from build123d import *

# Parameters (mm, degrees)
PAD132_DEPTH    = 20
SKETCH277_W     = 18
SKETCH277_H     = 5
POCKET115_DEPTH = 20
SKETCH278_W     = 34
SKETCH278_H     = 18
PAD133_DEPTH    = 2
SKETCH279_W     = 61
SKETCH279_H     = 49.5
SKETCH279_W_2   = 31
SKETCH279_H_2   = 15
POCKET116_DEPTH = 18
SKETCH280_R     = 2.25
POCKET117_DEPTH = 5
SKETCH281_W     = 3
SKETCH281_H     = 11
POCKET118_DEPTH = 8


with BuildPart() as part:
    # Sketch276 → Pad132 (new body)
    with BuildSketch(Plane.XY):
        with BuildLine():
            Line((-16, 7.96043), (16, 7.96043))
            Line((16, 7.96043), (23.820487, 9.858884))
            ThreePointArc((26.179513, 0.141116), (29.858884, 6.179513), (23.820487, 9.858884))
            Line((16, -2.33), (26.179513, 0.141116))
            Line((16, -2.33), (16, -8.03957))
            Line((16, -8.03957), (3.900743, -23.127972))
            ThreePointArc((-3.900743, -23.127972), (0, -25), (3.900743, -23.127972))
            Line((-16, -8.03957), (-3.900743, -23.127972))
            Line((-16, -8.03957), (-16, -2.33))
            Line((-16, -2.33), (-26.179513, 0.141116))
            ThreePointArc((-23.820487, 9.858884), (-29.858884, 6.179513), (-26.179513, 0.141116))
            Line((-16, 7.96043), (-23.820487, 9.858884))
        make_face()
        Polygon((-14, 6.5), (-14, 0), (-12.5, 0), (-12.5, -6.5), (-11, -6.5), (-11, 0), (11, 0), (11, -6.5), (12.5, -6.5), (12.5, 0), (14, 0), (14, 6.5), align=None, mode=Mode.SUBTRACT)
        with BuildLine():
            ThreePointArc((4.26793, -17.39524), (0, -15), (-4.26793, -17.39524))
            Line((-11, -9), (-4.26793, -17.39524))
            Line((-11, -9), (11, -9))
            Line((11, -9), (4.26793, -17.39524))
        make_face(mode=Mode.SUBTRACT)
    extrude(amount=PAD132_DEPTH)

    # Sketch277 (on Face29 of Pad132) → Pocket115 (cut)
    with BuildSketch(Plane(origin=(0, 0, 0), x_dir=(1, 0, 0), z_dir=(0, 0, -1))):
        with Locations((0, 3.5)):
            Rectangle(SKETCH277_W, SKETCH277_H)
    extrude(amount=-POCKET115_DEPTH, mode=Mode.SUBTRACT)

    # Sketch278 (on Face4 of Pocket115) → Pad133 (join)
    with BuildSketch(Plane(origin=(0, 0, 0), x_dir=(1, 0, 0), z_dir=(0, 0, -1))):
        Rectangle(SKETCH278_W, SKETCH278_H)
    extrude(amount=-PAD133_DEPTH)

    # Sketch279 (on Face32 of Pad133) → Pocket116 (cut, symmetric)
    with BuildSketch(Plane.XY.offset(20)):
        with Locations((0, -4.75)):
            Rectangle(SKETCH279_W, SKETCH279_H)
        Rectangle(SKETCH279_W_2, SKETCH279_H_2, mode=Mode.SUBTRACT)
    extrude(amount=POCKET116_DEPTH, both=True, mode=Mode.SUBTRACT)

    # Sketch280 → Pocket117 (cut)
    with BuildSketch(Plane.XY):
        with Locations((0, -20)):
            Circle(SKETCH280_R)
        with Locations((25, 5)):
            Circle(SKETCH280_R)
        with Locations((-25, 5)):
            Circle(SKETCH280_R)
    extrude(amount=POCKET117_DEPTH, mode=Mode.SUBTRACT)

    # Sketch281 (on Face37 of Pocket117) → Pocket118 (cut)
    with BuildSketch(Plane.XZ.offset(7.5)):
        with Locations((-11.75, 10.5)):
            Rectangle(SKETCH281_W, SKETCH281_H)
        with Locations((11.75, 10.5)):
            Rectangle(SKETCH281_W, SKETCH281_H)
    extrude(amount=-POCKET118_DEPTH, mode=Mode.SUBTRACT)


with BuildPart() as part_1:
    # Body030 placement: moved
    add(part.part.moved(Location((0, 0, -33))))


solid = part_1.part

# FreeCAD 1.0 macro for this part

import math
import FreeCAD as App
import Part
import Sketcher
from FreeCAD import Vector
Q = App.Units.Quantity

doc = App.newDocument("Part")
params = doc.addObject("Spreadsheet::Sheet", "Params")
for row, (alias, value) in enumerate([
    ("sketch1_radius", "5 mm"),
    ("sketch1_width", "32 mm"),
    ("sketch1_width2", "22 mm"),
    ("sketch1_width3", "28 mm"),
    ("sketch1_height", "6.5 mm"),
    ("pad1_length", "20 mm"),
    ("sketch2_width", "18 mm"),
    ("sketch2_height", "5 mm"),
    ("pocket1_length", "20 mm"),
    ("sketch3_width", "34 mm"),
    ("sketch3_height", "18 mm"),
    ("pad2_length", "2 mm"),
    ("sketch4_width", "61 mm"),
    ("sketch4_width2", "31 mm"),
    ("sketch4_height", "15 mm"),
    ("sketch4_height2", "49.5 mm"),
    ("pocket2_length", "36 mm"),
    ("sketch5_diameter", "4.5 mm"),
    ("pocket3_length", "5 mm"),
    ("sketch6_width", "3 mm"),
    ("sketch6_height", "11 mm"),
    ("pocket4_length", "8 mm"),
], start=1):
    params.set(f"A{row}", alias)
    params.set(f"B{row}", "=" + value)
    params.setAlias(f"B{row}", alias)

body = doc.addObject("PartDesign::Body", "Body")

sketch1 = body.newObject("Sketcher::SketchObject", "Sketch")
sketch1.AttachmentSupport = (doc.getObject("XY_Plane"), [""])
sketch1.MapMode = "FlatFace"
sketch1.addGeometry(Part.LineSegment(Vector(16, 7.96043, 0), Vector(-16, 7.96043, 0)), False)
sketch1.addGeometry(Part.LineSegment(Vector(-16, 7.96043, 0), Vector(-23.820487, 9.858884, 0)), False)
sketch1.addGeometry(Part.ArcOfCircle(Part.Circle(Vector(-25, 5, 0), Vector(0, 0, 1), 5), math.radians(76.355167), math.radians(256.355167)), False)
sketch1.addGeometry(Part.LineSegment(Vector(-26.179513, 0.141116, 0), Vector(-16, -2.33, 0)), False)
sketch1.addGeometry(Part.LineSegment(Vector(-16, -2.33, 0), Vector(-16, -8.03957, 0)), False)
sketch1.addGeometry(Part.LineSegment(Vector(-16, -8.03957, 0), Vector(-3.900743, -23.127972, 0)), False)
sketch1.addGeometry(Part.ArcOfCircle(Part.Circle(Vector(0, -19.999999, 0), Vector(0, 0, 1), 5.000001), math.radians(-141.274165), math.radians(-38.725835)), False)
sketch1.addGeometry(Part.LineSegment(Vector(3.900743, -23.127972, 0), Vector(16, -8.03957, 0)), False)
sketch1.addGeometry(Part.LineSegment(Vector(16, -8.03957, 0), Vector(16, -2.33, 0)), False)
sketch1.addGeometry(Part.LineSegment(Vector(16, -2.33, 0), Vector(26.179513, 0.141116, 0)), False)
sketch1.addGeometry(Part.ArcOfCircle(Part.Circle(Vector(25, 5, 0), Vector(0, 0, 1), 5), math.radians(-76.355167), math.radians(103.644833)), False)
sketch1.addGeometry(Part.LineSegment(Vector(23.820487, 9.858884, 0), Vector(16, 7.96043, 0)), False)
sketch1.addGeometry(Part.ArcOfCircle(Part.Circle(Vector(0, -20, 0), Vector(0, 0, 1), 5), math.radians(31.396133), math.radians(148.603867)), False)
sketch1.addGeometry(Part.LineSegment(Vector(-4.26793, -17.39524, 0), Vector(-11, -9, 0)), False)
sketch1.addGeometry(Part.LineSegment(Vector(-11, -9, 0), Vector(11, -9, 0)), False)
sketch1.addGeometry(Part.LineSegment(Vector(11, -9, 0), Vector(4.26793, -17.39524, 0)), False)
sketch1.addGeometry(Part.LineSegment(Vector(-14, 6.5, 0), Vector(14, 6.5, 0)), False)
sketch1.addGeometry(Part.LineSegment(Vector(14, 6.5, 0), Vector(14, 0, 0)), False)
sketch1.addGeometry(Part.LineSegment(Vector(14, 0, 0), Vector(12.5, 0, 0)), False)
sketch1.addGeometry(Part.LineSegment(Vector(12.5, 0, 0), Vector(12.5, -6.5, 0)), False)
sketch1.addGeometry(Part.LineSegment(Vector(12.5, -6.5, 0), Vector(11, -6.5, 0)), False)
sketch1.addGeometry(Part.LineSegment(Vector(11, -6.5, 0), Vector(11, 0, 0)), False)
sketch1.addGeometry(Part.LineSegment(Vector(11, 0, 0), Vector(-11, 0, 0)), False)
sketch1.addGeometry(Part.LineSegment(Vector(-11, 0, 0), Vector(-11, -6.5, 0)), False)
sketch1.addGeometry(Part.LineSegment(Vector(-11, -6.5, 0), Vector(-12.5, -6.5, 0)), False)
sketch1.addGeometry(Part.LineSegment(Vector(-12.5, -6.5, 0), Vector(-12.5, 0, 0)), False)
sketch1.addGeometry(Part.LineSegment(Vector(-12.5, 0, 0), Vector(-14, 0, 0)), False)
sketch1.addGeometry(Part.LineSegment(Vector(-14, 0, 0), Vector(-14, 6.5, 0)), False)
sketch1.addConstraint(Sketcher.Constraint("Coincident", 0, 2, 1, 1))
sketch1.addConstraint(Sketcher.Constraint("Tangent", 1, 2, 2, 1))
sketch1.addConstraint(Sketcher.Constraint("Tangent", 2, 2, 3, 1))
sketch1.addConstraint(Sketcher.Constraint("Coincident", 3, 2, 4, 1))
sketch1.addConstraint(Sketcher.Constraint("Coincident", 4, 2, 5, 1))
sketch1.addConstraint(Sketcher.Constraint("Tangent", 5, 2, 6, 1))
sketch1.addConstraint(Sketcher.Constraint("Tangent", 6, 2, 7, 1))
sketch1.addConstraint(Sketcher.Constraint("Coincident", 7, 2, 8, 1))
sketch1.addConstraint(Sketcher.Constraint("Coincident", 8, 2, 9, 1))
sketch1.addConstraint(Sketcher.Constraint("Tangent", 9, 2, 10, 1))
sketch1.addConstraint(Sketcher.Constraint("Tangent", 10, 2, 11, 1))
sketch1.addConstraint(Sketcher.Constraint("Coincident", 11, 2, 0, 1))
sketch1.addConstraint(Sketcher.Constraint("Coincident", 12, 2, 13, 1))
sketch1.addConstraint(Sketcher.Constraint("Coincident", 13, 2, 14, 1))
sketch1.addConstraint(Sketcher.Constraint("Coincident", 14, 2, 15, 1))
sketch1.addConstraint(Sketcher.Constraint("Coincident", 15, 2, 12, 1))
sketch1.addConstraint(Sketcher.Constraint("Coincident", 16, 2, 17, 1))
sketch1.addConstraint(Sketcher.Constraint("Coincident", 17, 2, 18, 1))
sketch1.addConstraint(Sketcher.Constraint("Coincident", 18, 2, 19, 1))
sketch1.addConstraint(Sketcher.Constraint("Coincident", 19, 2, 20, 1))
sketch1.addConstraint(Sketcher.Constraint("Coincident", 20, 2, 21, 1))
sketch1.addConstraint(Sketcher.Constraint("Coincident", 21, 2, 22, 1))
sketch1.addConstraint(Sketcher.Constraint("Coincident", 22, 2, 23, 1))
sketch1.addConstraint(Sketcher.Constraint("Coincident", 23, 2, 24, 1))
sketch1.addConstraint(Sketcher.Constraint("Coincident", 24, 2, 25, 1))
sketch1.addConstraint(Sketcher.Constraint("Coincident", 25, 2, 26, 1))
sketch1.addConstraint(Sketcher.Constraint("Coincident", 26, 2, 27, 1))
sketch1.addConstraint(Sketcher.Constraint("Coincident", 27, 2, 16, 1))
sketch1.addConstraint(Sketcher.Constraint("Horizontal", 0))
sketch1.addConstraint(Sketcher.Constraint("Vertical", 4))
sketch1.addConstraint(Sketcher.Constraint("Vertical", 8))
sketch1.addConstraint(Sketcher.Constraint("Horizontal", 14))
sketch1.addConstraint(Sketcher.Constraint("Horizontal", 16))
sketch1.addConstraint(Sketcher.Constraint("Vertical", 17))
sketch1.addConstraint(Sketcher.Constraint("Horizontal", 18))
sketch1.addConstraint(Sketcher.Constraint("Vertical", 19))
sketch1.addConstraint(Sketcher.Constraint("Horizontal", 20))
sketch1.addConstraint(Sketcher.Constraint("Vertical", 21))
sketch1.addConstraint(Sketcher.Constraint("Horizontal", 22))
sketch1.addConstraint(Sketcher.Constraint("Vertical", 23))
sketch1.addConstraint(Sketcher.Constraint("Horizontal", 24))
sketch1.addConstraint(Sketcher.Constraint("Vertical", 25))
sketch1.addConstraint(Sketcher.Constraint("Horizontal", 26))
sketch1.addConstraint(Sketcher.Constraint("Vertical", 27))
sketch1.addConstraint(Sketcher.Constraint("Coincident", 12, 3, 6, 3))
sketch1.addConstraint(Sketcher.Constraint("Equal", 2, 6))
sketch1.addConstraint(Sketcher.Constraint("Equal", 6, 10))
sketch1.addConstraint(Sketcher.Constraint("Equal", 10, 12))
sketch1.addConstraint(Sketcher.Constraint("Symmetric", 21, 2, 22, 2, -1, 1))
sketch1.addConstraint(Sketcher.Constraint("Symmetric", 18, 2, 25, 2, -1, 1))
sketch1.addConstraint(Sketcher.Constraint("Symmetric", 2, 3, 10, 3, -2))
sketch1.addConstraint(Sketcher.Constraint("Symmetric", 5, 2, 6, 2, -2))
sketch1.addConstraint(Sketcher.Constraint("Symmetric", 3, 2, 8, 2, -2))
sketch1.addConstraint(Sketcher.Constraint("Symmetric", 17, 2, 26, 2, -2))
sketch1.addConstraint(Sketcher.Constraint("Parallel", 1, 3))
sketch1.addConstraint(Sketcher.Constraint("Parallel", 9, 11))
sketch1.addConstraint(Sketcher.Constraint("Parallel", 5, 13))
sketch1.addConstraint(Sketcher.Constraint("Parallel", 7, 15))
sketch1.addConstraint(Sketcher.Constraint("Horizontal", 12, 2, 15, 2))
sketch1.addConstraint(Sketcher.Constraint("Horizontal", 20, 2, 23, 2))
sketch1.addConstraint(Sketcher.Constraint("Vertical", 0, 2, 3, 2))
sketch1.addConstraint(Sketcher.Constraint("Vertical", 14, 2, 20, 2))
sketch1.addConstraint(Sketcher.Constraint("Equal", 18, 20))
sketch1.addConstraint(Sketcher.Constraint("Equal", 17, 19))
sketch1.addConstraint(Sketcher.Constraint("Radius", 2, Q("5 mm")))
sketch1.addConstraint(Sketcher.Constraint("DistanceX", 0, 2, 0, 1, Q("32 mm")))
sketch1.addConstraint(Sketcher.Constraint("DistanceX", 14, 1, 14, 2, Q("22 mm")))
sketch1.addConstraint(Sketcher.Constraint("DistanceX", 16, 1, 16, 2, Q("28 mm")))
sketch1.addConstraint(Sketcher.Constraint("DistanceY", 17, 2, 17, 1, Q("6.5 mm")))
sketch1.addConstraint(Sketcher.Constraint("DistanceX", 2, 3, -1, 1, Q("25 mm")))
sketch1.addConstraint(Sketcher.Constraint("DistanceY", -1, 1, 2, 3, Q("5 mm")))
sketch1.addConstraint(Sketcher.Constraint("DistanceY", 6, 3, -1, 1, Q("19.999999 mm")))
sketch1.addConstraint(Sketcher.Constraint("DistanceY", 13, 2, -1, 1, Q("9 mm")))
sketch1.addConstraint(Sketcher.Constraint("DistanceY", 4, 2, 0, 2, Q("16 mm")))
sketch1.addConstraint(Sketcher.Constraint("DistanceY", 3, 2, -1, 1, Q("2.33 mm")))
sketch1.setExpression("Constraints[64]", "Params.sketch1_radius")
sketch1.setExpression("Constraints[65]", "Params.sketch1_width")
sketch1.setExpression("Constraints[66]", "Params.sketch1_width2")
sketch1.setExpression("Constraints[67]", "Params.sketch1_width3")
sketch1.setExpression("Constraints[68]", "Params.sketch1_height")
pad1 = body.newObject("PartDesign::Pad", "Pad")
pad1.Profile = sketch1
pad1.setExpression("Length", "Params.pad1_length")

sketch2 = body.newObject("Sketcher::SketchObject", "Sketch001")
sketch2.AttachmentSupport = (doc.getObject("XY_Plane"), [""])
sketch2.MapMode = "FlatFace"
sketch2.addGeometry(Part.LineSegment(Vector(-9, -6, 0), Vector(-9, -1, 0)), False)
sketch2.addGeometry(Part.LineSegment(Vector(-9, -1, 0), Vector(9, -1, 0)), False)
sketch2.addGeometry(Part.LineSegment(Vector(9, -1, 0), Vector(9, -6, 0)), False)
sketch2.addGeometry(Part.LineSegment(Vector(9, -6, 0), Vector(-9, -6, 0)), False)
sketch2.addConstraint(Sketcher.Constraint("Coincident", 0, 2, 1, 1))
sketch2.addConstraint(Sketcher.Constraint("Coincident", 1, 2, 2, 1))
sketch2.addConstraint(Sketcher.Constraint("Coincident", 2, 2, 3, 1))
sketch2.addConstraint(Sketcher.Constraint("Coincident", 3, 2, 0, 1))
sketch2.addConstraint(Sketcher.Constraint("Vertical", 0))
sketch2.addConstraint(Sketcher.Constraint("Horizontal", 1))
sketch2.addConstraint(Sketcher.Constraint("Vertical", 2))
sketch2.addConstraint(Sketcher.Constraint("Horizontal", 3))
sketch2.addConstraint(Sketcher.Constraint("DistanceX", 1, 1, 1, 2, Q("18 mm")))
sketch2.addConstraint(Sketcher.Constraint("DistanceY", 0, 1, 0, 2, Q("5 mm")))
sketch2.addConstraint(Sketcher.Constraint("DistanceX", 0, 2, -1, 1, Q("9 mm")))
sketch2.addConstraint(Sketcher.Constraint("DistanceY", 0, 2, -1, 1, Q("1 mm")))
sketch2.setExpression("Constraints[8]", "Params.sketch2_width")
sketch2.setExpression("Constraints[9]", "Params.sketch2_height")
pocket1 = body.newObject("PartDesign::Pocket", "Pocket")
pocket1.Profile = sketch2
pocket1.setExpression("Length", "Params.pocket1_length")
pocket1.Reversed = True

sketch3 = body.newObject("Sketcher::SketchObject", "Sketch002")
sketch3.AttachmentSupport = (doc.getObject("XY_Plane"), [""])
sketch3.MapMode = "FlatFace"
sketch3.addGeometry(Part.LineSegment(Vector(-17, -9, 0), Vector(-17, 9, 0)), False)
sketch3.addGeometry(Part.LineSegment(Vector(-17, 9, 0), Vector(17, 9, 0)), False)
sketch3.addGeometry(Part.LineSegment(Vector(17, 9, 0), Vector(17, -9, 0)), False)
sketch3.addGeometry(Part.LineSegment(Vector(17, -9, 0), Vector(-17, -9, 0)), False)
sketch3.addConstraint(Sketcher.Constraint("Coincident", 0, 2, 1, 1))
sketch3.addConstraint(Sketcher.Constraint("Coincident", 1, 2, 2, 1))
sketch3.addConstraint(Sketcher.Constraint("Coincident", 2, 2, 3, 1))
sketch3.addConstraint(Sketcher.Constraint("Coincident", 3, 2, 0, 1))
sketch3.addConstraint(Sketcher.Constraint("Vertical", 0))
sketch3.addConstraint(Sketcher.Constraint("Horizontal", 1))
sketch3.addConstraint(Sketcher.Constraint("Vertical", 2))
sketch3.addConstraint(Sketcher.Constraint("Horizontal", 3))
sketch3.addConstraint(Sketcher.Constraint("Symmetric", 0, 2, 2, 2, -1, 1))
sketch3.addConstraint(Sketcher.Constraint("DistanceX", 1, 1, 1, 2, Q("34 mm")))
sketch3.addConstraint(Sketcher.Constraint("DistanceY", 0, 1, 0, 2, Q("18 mm")))
sketch3.setExpression("Constraints[9]", "Params.sketch3_width")
sketch3.setExpression("Constraints[10]", "Params.sketch3_height")
pad2 = body.newObject("PartDesign::Pad", "Pad001")
pad2.Profile = sketch3
pad2.setExpression("Length", "Params.pad2_length")

sketch4 = body.newObject("Sketcher::SketchObject", "Sketch003")
sketch4.AttachmentSupport = (doc.getObject("XY_Plane"), [""])
sketch4.MapMode = "FlatFace"
sketch4.AttachmentOffset = App.Placement(Vector(0, 0, 20), App.Rotation())
sketch4.addGeometry(Part.LineSegment(Vector(-30.5, 20, 0), Vector(-30.5, -29.5, 0)), False)
sketch4.addGeometry(Part.LineSegment(Vector(-30.5, -29.5, 0), Vector(30.5, -29.5, 0)), False)
sketch4.addGeometry(Part.LineSegment(Vector(30.5, -29.5, 0), Vector(30.5, 20, 0)), False)
sketch4.addGeometry(Part.LineSegment(Vector(30.5, 20, 0), Vector(-30.5, 20, 0)), False)
sketch4.addGeometry(Part.LineSegment(Vector(15.5, -7.5, 0), Vector(-15.5, -7.5, 0)), False)
sketch4.addGeometry(Part.LineSegment(Vector(-15.5, -7.5, 0), Vector(-15.5, 7.5, 0)), False)
sketch4.addGeometry(Part.LineSegment(Vector(-15.5, 7.5, 0), Vector(15.5, 7.5, 0)), False)
sketch4.addGeometry(Part.LineSegment(Vector(15.5, 7.5, 0), Vector(15.5, -7.5, 0)), False)
sketch4.addConstraint(Sketcher.Constraint("Coincident", 0, 2, 1, 1))
sketch4.addConstraint(Sketcher.Constraint("Coincident", 1, 2, 2, 1))
sketch4.addConstraint(Sketcher.Constraint("Coincident", 2, 2, 3, 1))
sketch4.addConstraint(Sketcher.Constraint("Coincident", 3, 2, 0, 1))
sketch4.addConstraint(Sketcher.Constraint("Coincident", 4, 2, 5, 1))
sketch4.addConstraint(Sketcher.Constraint("Coincident", 5, 2, 6, 1))
sketch4.addConstraint(Sketcher.Constraint("Coincident", 6, 2, 7, 1))
sketch4.addConstraint(Sketcher.Constraint("Coincident", 7, 2, 4, 1))
sketch4.addConstraint(Sketcher.Constraint("Vertical", 0))
sketch4.addConstraint(Sketcher.Constraint("Horizontal", 1))
sketch4.addConstraint(Sketcher.Constraint("Vertical", 2))
sketch4.addConstraint(Sketcher.Constraint("Horizontal", 3))
sketch4.addConstraint(Sketcher.Constraint("Horizontal", 4))
sketch4.addConstraint(Sketcher.Constraint("Vertical", 5))
sketch4.addConstraint(Sketcher.Constraint("Horizontal", 6))
sketch4.addConstraint(Sketcher.Constraint("Vertical", 7))
sketch4.addConstraint(Sketcher.Constraint("Symmetric", 4, 2, 6, 2, -1, 1))
sketch4.addConstraint(Sketcher.Constraint("DistanceX", 1, 1, 1, 2, Q("61 mm")))
sketch4.addConstraint(Sketcher.Constraint("DistanceX", 4, 2, 4, 1, Q("31 mm")))
sketch4.addConstraint(Sketcher.Constraint("DistanceY", 5, 1, 5, 2, Q("15 mm")))
sketch4.addConstraint(Sketcher.Constraint("DistanceY", 0, 2, 0, 1, Q("49.5 mm")))
sketch4.addConstraint(Sketcher.Constraint("DistanceY", -1, 1, 2, 2, Q("20 mm")))
sketch4.addConstraint(Sketcher.Constraint("DistanceX", 0, 2, 4, 2, Q("15 mm")))
sketch4.setExpression("Constraints[17]", "Params.sketch4_width")
sketch4.setExpression("Constraints[18]", "Params.sketch4_width2")
sketch4.setExpression("Constraints[19]", "Params.sketch4_height")
sketch4.setExpression("Constraints[20]", "Params.sketch4_height2")
pocket2 = body.newObject("PartDesign::Pocket", "Pocket001")
pocket2.Profile = sketch4
pocket2.setExpression("Length", "Params.pocket2_length")
pocket2.Midplane = True

sketch5 = body.newObject("Sketcher::SketchObject", "Sketch004")
sketch5.AttachmentSupport = (doc.getObject("XY_Plane"), [""])
sketch5.MapMode = "FlatFace"
sketch5.addGeometry(Part.Circle(Vector(0, -20, 0), Vector(0, 0, 1), 2.25), False)
sketch5.addGeometry(Part.Circle(Vector(25, 5, 0), Vector(0, 0, 1), 2.25), False)
sketch5.addGeometry(Part.Circle(Vector(-25, 5, 0), Vector(0, 0, 1), 2.25), False)
sketch5.addConstraint(Sketcher.Constraint("Equal", 0, 1))
sketch5.addConstraint(Sketcher.Constraint("Equal", 1, 2))
sketch5.addConstraint(Sketcher.Constraint("Symmetric", 1, 3, 2, 3, -2))
sketch5.addConstraint(Sketcher.Constraint("PointOnObject", 0, 3, -2))
sketch5.addConstraint(Sketcher.Constraint("Diameter", 0, Q("4.5 mm")))
sketch5.addConstraint(Sketcher.Constraint("DistanceY", 0, 3, -1, 1, Q("20 mm")))
sketch5.addConstraint(Sketcher.Constraint("DistanceX", -1, 1, 1, 3, Q("25 mm")))
sketch5.addConstraint(Sketcher.Constraint("DistanceY", -1, 1, 1, 3, Q("5 mm")))
sketch5.setExpression("Constraints[4]", "Params.sketch5_diameter")
pocket3 = body.newObject("PartDesign::Pocket", "Pocket002")
pocket3.Profile = sketch5
pocket3.setExpression("Length", "Params.pocket3_length")
pocket3.Reversed = True

sketch6 = body.newObject("Sketcher::SketchObject", "Sketch005")
sketch6.AttachmentSupport = (doc.getObject("XZ_Plane"), [""])
sketch6.MapMode = "FlatFace"
sketch6.AttachmentOffset = App.Placement(Vector(0, 0, 7.5), App.Rotation())
sketch6.addGeometry(Part.LineSegment(Vector(-13.25, 16, 0), Vector(-13.25, 5, 0)), False)
sketch6.addGeometry(Part.LineSegment(Vector(-13.25, 5, 0), Vector(-10.25, 5, 0)), False)
sketch6.addGeometry(Part.LineSegment(Vector(-10.25, 5, 0), Vector(-10.25, 16, 0)), False)
sketch6.addGeometry(Part.LineSegment(Vector(-10.25, 16, 0), Vector(-13.25, 16, 0)), False)
sketch6.addGeometry(Part.LineSegment(Vector(10.25, 16, 0), Vector(10.25, 5, 0)), False)
sketch6.addGeometry(Part.LineSegment(Vector(10.25, 5, 0), Vector(13.25, 5, 0)), False)
sketch6.addGeometry(Part.LineSegment(Vector(13.25, 5, 0), Vector(13.25, 16, 0)), False)
sketch6.addGeometry(Part.LineSegment(Vector(13.25, 16, 0), Vector(10.25, 16, 0)), False)
sketch6.addConstraint(Sketcher.Constraint("Coincident", 0, 2, 1, 1))
sketch6.addConstraint(Sketcher.Constraint("Coincident", 1, 2, 2, 1))
sketch6.addConstraint(Sketcher.Constraint("Coincident", 2, 2, 3, 1))
sketch6.addConstraint(Sketcher.Constraint("Coincident", 3, 2, 0, 1))
sketch6.addConstraint(Sketcher.Constraint("Coincident", 4, 2, 5, 1))
sketch6.addConstraint(Sketcher.Constraint("Coincident", 5, 2, 6, 1))
sketch6.addConstraint(Sketcher.Constraint("Coincident", 6, 2, 7, 1))
sketch6.addConstraint(Sketcher.Constraint("Coincident", 7, 2, 4, 1))
sketch6.addConstraint(Sketcher.Constraint("Vertical", 0))
sketch6.addConstraint(Sketcher.Constraint("Horizontal", 1))
sketch6.addConstraint(Sketcher.Constraint("Vertical", 2))
sketch6.addConstraint(Sketcher.Constraint("Horizontal", 3))
sketch6.addConstraint(Sketcher.Constraint("Vertical", 4))
sketch6.addConstraint(Sketcher.Constraint("Horizontal", 5))
sketch6.addConstraint(Sketcher.Constraint("Vertical", 6))
sketch6.addConstraint(Sketcher.Constraint("Horizontal", 7))
sketch6.addConstraint(Sketcher.Constraint("Symmetric", 1, 2, 4, 2, -2))
sketch6.addConstraint(Sketcher.Constraint("Symmetric", 3, 2, 6, 2, -2))
sketch6.addConstraint(Sketcher.Constraint("DistanceX", 1, 1, 1, 2, Q("3 mm")))
sketch6.addConstraint(Sketcher.Constraint("DistanceY", 0, 2, 0, 1, Q("11 mm")))
sketch6.addConstraint(Sketcher.Constraint("DistanceY", -1, 1, 0, 2, Q("5 mm")))
sketch6.addConstraint(Sketcher.Constraint("DistanceX", 1, 2, 4, 2, Q("20.5 mm")))
sketch6.setExpression("Constraints[18]", "Params.sketch6_width")
sketch6.setExpression("Constraints[19]", "Params.sketch6_height")
pocket4 = body.newObject("PartDesign::Pocket", "Pocket003")
pocket4.Profile = sketch6
pocket4.setExpression("Length", "Params.pocket4_length")
body2 = doc.addObject("PartDesign::Body", "Body001")
doc.recompute()

body.Placement = App.Placement(Vector(0, 0, -33), App.Rotation(Vector(0, 0, 1), 0))
boolean = body2.newObject("PartDesign::Boolean", "Boolean")
boolean.Type = "Fuse"
boolean.addObjects([body])

doc.recompute()
